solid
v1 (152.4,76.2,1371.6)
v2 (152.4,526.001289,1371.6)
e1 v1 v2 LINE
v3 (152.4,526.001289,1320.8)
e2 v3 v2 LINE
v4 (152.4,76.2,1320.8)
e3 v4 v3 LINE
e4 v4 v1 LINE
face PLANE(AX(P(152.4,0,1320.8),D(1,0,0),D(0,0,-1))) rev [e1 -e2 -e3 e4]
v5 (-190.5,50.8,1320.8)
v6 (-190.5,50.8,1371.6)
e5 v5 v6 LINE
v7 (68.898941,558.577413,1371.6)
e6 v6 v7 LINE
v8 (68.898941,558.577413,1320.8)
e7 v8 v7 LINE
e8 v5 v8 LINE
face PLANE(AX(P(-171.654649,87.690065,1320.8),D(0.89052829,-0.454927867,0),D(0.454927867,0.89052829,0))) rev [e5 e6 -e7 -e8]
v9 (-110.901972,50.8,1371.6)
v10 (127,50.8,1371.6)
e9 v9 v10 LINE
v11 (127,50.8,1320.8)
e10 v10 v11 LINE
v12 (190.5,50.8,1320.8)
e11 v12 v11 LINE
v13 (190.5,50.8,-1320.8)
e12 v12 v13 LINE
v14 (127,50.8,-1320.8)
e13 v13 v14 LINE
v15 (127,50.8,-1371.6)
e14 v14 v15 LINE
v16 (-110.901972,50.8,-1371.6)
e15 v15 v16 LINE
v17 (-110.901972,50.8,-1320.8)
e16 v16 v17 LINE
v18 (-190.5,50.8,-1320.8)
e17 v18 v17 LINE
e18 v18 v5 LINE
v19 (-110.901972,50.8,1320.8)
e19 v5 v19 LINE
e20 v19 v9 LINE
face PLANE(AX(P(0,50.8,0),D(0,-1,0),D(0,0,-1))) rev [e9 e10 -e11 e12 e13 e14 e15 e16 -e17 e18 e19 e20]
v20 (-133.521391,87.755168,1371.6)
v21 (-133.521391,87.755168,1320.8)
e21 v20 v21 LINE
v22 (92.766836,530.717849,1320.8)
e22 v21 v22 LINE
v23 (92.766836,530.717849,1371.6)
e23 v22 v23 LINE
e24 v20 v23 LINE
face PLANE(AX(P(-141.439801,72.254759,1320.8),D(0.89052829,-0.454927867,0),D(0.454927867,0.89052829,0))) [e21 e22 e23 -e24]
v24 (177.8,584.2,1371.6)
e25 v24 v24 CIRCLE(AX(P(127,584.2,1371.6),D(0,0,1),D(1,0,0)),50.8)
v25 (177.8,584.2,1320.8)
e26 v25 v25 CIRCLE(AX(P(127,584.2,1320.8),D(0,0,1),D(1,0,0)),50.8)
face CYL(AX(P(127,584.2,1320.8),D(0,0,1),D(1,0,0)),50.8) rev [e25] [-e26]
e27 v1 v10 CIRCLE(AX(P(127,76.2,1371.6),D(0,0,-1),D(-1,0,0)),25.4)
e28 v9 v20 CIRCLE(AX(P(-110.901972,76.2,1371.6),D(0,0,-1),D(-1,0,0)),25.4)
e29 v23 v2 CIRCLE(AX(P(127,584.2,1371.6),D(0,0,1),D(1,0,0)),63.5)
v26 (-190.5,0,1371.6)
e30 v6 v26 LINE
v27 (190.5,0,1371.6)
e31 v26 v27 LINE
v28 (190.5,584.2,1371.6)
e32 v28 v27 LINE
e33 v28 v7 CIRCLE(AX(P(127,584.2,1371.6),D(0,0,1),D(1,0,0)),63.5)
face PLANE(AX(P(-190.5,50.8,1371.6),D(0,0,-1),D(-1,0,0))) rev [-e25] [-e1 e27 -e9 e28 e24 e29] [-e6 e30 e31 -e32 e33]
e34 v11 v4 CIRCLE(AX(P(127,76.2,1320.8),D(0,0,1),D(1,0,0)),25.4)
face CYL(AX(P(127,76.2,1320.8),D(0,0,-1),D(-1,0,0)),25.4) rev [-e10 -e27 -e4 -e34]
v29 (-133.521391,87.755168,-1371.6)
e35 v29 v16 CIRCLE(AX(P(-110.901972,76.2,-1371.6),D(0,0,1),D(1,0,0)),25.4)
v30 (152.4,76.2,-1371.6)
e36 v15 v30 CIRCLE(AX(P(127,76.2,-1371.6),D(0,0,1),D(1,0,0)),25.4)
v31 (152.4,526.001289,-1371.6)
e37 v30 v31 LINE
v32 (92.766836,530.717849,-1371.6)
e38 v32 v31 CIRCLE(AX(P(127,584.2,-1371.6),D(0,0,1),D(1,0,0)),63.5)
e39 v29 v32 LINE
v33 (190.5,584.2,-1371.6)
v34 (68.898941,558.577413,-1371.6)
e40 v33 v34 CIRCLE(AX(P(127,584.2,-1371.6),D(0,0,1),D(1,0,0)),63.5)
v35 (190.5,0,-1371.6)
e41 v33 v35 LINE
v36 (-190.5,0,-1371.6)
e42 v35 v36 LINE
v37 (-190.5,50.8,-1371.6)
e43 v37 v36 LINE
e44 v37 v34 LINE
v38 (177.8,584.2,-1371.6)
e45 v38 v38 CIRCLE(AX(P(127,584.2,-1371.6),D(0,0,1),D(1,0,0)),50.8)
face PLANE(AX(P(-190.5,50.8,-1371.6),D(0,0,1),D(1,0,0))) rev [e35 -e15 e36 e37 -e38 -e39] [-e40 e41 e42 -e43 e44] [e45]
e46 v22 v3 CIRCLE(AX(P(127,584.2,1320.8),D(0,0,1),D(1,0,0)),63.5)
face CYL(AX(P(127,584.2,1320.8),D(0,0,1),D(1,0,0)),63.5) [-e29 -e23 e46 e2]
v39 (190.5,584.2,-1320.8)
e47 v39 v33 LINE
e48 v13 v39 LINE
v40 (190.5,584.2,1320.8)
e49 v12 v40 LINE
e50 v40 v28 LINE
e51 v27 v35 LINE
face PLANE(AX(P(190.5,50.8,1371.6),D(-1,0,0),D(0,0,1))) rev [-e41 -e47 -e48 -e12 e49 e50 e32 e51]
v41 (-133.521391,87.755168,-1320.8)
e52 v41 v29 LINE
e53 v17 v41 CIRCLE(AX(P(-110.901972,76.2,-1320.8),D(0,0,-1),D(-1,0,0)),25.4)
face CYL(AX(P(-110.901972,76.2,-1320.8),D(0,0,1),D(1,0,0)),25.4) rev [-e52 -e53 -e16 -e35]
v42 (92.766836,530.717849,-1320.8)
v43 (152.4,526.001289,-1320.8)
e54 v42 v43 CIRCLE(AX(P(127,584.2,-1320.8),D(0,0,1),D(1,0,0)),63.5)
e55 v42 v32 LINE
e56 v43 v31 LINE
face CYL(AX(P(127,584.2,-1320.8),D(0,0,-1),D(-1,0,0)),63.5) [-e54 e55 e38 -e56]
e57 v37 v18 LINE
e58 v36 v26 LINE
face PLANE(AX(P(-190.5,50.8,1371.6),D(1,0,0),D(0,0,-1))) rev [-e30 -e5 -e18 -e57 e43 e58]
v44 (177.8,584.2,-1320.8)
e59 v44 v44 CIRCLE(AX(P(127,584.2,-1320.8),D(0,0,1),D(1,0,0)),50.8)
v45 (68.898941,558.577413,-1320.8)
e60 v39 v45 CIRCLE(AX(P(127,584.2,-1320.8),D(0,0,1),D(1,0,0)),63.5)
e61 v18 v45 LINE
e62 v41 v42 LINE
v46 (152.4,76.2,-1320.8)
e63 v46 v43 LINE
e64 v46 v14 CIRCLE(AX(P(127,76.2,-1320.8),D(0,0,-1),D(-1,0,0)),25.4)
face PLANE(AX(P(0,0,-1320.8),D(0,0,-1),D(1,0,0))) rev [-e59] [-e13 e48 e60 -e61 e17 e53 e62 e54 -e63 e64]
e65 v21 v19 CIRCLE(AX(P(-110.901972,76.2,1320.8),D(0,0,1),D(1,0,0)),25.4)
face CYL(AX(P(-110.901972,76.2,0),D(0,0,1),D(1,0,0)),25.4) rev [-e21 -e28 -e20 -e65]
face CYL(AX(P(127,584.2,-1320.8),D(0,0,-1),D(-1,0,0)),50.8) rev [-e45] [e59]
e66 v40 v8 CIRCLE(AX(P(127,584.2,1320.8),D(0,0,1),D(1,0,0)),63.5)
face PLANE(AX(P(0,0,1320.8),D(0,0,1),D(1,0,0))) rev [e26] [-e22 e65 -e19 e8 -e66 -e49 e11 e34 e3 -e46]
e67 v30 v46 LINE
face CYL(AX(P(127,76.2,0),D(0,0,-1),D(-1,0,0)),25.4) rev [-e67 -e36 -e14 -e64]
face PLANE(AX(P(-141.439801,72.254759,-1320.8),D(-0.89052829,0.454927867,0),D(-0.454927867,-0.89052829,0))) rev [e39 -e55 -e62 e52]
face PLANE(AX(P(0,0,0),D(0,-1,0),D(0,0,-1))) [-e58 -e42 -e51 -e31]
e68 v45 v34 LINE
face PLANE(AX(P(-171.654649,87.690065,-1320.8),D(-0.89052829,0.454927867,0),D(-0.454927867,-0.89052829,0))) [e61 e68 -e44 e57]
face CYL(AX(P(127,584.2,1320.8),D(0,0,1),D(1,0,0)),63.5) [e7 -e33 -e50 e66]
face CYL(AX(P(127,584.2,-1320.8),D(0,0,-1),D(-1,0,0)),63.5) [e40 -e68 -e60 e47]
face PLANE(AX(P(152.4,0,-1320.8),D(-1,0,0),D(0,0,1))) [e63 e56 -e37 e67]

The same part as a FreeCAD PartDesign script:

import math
import FreeCAD as App
import Part
import Sketcher
from FreeCAD import Vector
Q = App.Units.Quantity


def edges_at(feature, points):
    """Names of the edges that pass closest to the given points."""
    edges = feature.Shape.Edges
    near = lambda p: min(range(len(edges)), key=lambda i: edges[i].distToShape(Part.Vertex(*p))[0])
    return sorted({f"Edge{near(p) + 1}" for p in points})


def add_polygon(sketch, points):
    """Adds a closed chain of lines whose ends are joined by coincident constraints."""
    first, n = sketch.GeometryCount, len(points)
    for a, b in zip(points, points[1:] + points[:1]):
        sketch.addGeometry(Part.LineSegment(App.Vector(*a, 0), App.Vector(*b, 0)), False)
    for i in range(n):
        sketch.addConstraint(Sketcher.Constraint("Coincident", first + i, 2, first + (i + 1) % n, 1))

doc = App.newDocument("Part")
params = doc.addObject("Spreadsheet::Sheet", "Params")
for row, (alias, value) in enumerate([
    ("sketch1_width", "15 in"),
    ("sketch1_height", "108 in"),
    ("pad1_length", "2 in"),
    ("sketch2_diameter", "4 in"),
    ("sketch2_radius", "2.5 in"),
    ("sketch2_height", "21 in"),
    ("sketch2_width", "1.5 in"),
    ("pad2_length", "2 in"),
    ("fillet_radius", "1 in"),
], start=1):
    params.set(f"A{row}", alias)
    params.set(f"B{row}", "=" + value)
    params.setAlias(f"B{row}", alias)

body = doc.addObject("PartDesign::Body", "Body")

# Sketch on XZ plane
sketch1 = body.newObject("Sketcher::SketchObject", "Sketch")
sketch1.AttachmentSupport = (doc.getObject("XZ_Plane"), [""])
sketch1.MapMode = "FlatFace"
add_polygon(sketch1, [(-190, -1372), (-190, 1372), (190, 1372), (190, -1372)])  # lines 0-3
sketch1.addConstraint(Sketcher.Constraint("Vertical", 0))
sketch1.addConstraint(Sketcher.Constraint("Horizontal", 1))
sketch1.addConstraint(Sketcher.Constraint("Vertical", 2))
sketch1.addConstraint(Sketcher.Constraint("Horizontal", 3))
sketch1.addConstraint(Sketcher.Constraint("Symmetric", 0, 2, 2, 2, -1, 1))
sketch1.addConstraint(Sketcher.Constraint("DistanceX", 1, 1, 1, 2, Q("15 in")))
sketch1.addConstraint(Sketcher.Constraint("DistanceY", 0, 1, 0, 2, Q("108 in")))
sketch1.setExpression("Constraints[9]", "Params.sketch1_width")
sketch1.setExpression("Constraints[10]", "Params.sketch1_height")
pad1 = body.newObject("PartDesign::Pad", "Pad")
pad1.Profile = sketch1
pad1.setExpression("Length", "Params.pad1_length")
pad1.Reversed = True

# Sketch on XY plane
sketch2 = body.newObject("Sketcher::SketchObject", "Sketch001")
sketch2.AttachmentSupport = (doc.getObject("XY_Plane"), [""])
sketch2.MapMode = "FlatFace"
sketch2.AttachmentOffset = App.Placement(Vector(0, 0, 54 * 25.4), App.Rotation())
sketch2.addGeometry(Part.LineSegment(Vector(69, 559, 0), Vector(-190, 51, 0)), False)
sketch2.addGeometry(Part.LineSegment(Vector(-190, 51, 0), Vector(-152, 51, 0)), False)
sketch2.addGeometry(Part.LineSegment(Vector(-152, 51, 0), Vector(93, 531, 0)), False)
sketch2.addGeometry(Part.ArcOfCircle(Part.Circle(Vector(127, 584, 0), Vector(0, 0, 1), 64), math.radians(-123), math.radians(-66)), False)
sketch2.addGeometry(Part.LineSegment(Vector(152, 526, 0), Vector(152, 51, 0)), False)
sketch2.addGeometry(Part.LineSegment(Vector(152, 51, 0), Vector(190, 51, 0)), False)
sketch2.addGeometry(Part.LineSegment(Vector(190, 51, 0), Vector(190, 584, 0)), False)
sketch2.addGeometry(Part.ArcOfCircle(Part.Circle(Vector(127, 584, 0), Vector(0, 0, 1), 64), math.radians(0), math.radians(204)), False)
sketch2.addGeometry(Part.Circle(Vector(127, 584, 0), Vector(0, 0, 1), 51), False)
sketch2.addConstraint(Sketcher.Constraint("Coincident", 0, 2, 1, 1))
sketch2.addConstraint(Sketcher.Constraint("Coincident", 1, 2, 2, 1))
sketch2.addConstraint(Sketcher.Constraint("Coincident", 2, 2, 3, 1))
sketch2.addConstraint(Sketcher.Constraint("Coincident", 3, 2, 4, 1))
sketch2.addConstraint(Sketcher.Constraint("Coincident", 4, 2, 5, 1))
sketch2.addConstraint(Sketcher.Constraint("Coincident", 5, 2, 6, 1))
sketch2.addConstraint(Sketcher.Constraint("Tangent", 6, 2, 7, 1))
sketch2.addConstraint(Sketcher.Constraint("Coincident", 7, 2, 0, 1))
sketch2.addConstraint(Sketcher.Constraint("Horizontal", 1))
sketch2.addConstraint(Sketcher.Constraint("Vertical", 4))
sketch2.addConstraint(Sketcher.Constraint("Horizontal", 5))
sketch2.addConstraint(Sketcher.Constraint("Vertical", 6))
sketch2.addConstraint(Sketcher.Constraint("Coincident", 7, 3, 3, 3))
sketch2.addConstraint(Sketcher.Constraint("Coincident", 8, 3, 3, 3))
sketch2.addConstraint(Sketcher.Constraint("Equal", 3, 7))
sketch2.addConstraint(Sketcher.Constraint("Symmetric", 1, 2, 4, 2, -2))
sketch2.addConstraint(Sketcher.Constraint("Parallel", 0, 2))
sketch2.addConstraint(Sketcher.Constraint("Equal", 1, 5))
sketch2.addConstraint(Sketcher.Constraint("Diameter", 8, Q("4 in")))
sketch2.addConstraint(Sketcher.Constraint("Radius", 3, Q("2.5 in")))
sketch2.addConstraint(Sketcher.Constraint("DistanceY", 6, 1, 6, 2, Q("21 in")))
sketch2.addConstraint(Sketcher.Constraint("DistanceX", 1, 1, 1, 2, Q("1.5 in")))
sketch2.addConstraint(Sketcher.Constraint("DistanceX", -1, 1, 3, 3, Q("5 in")))
sketch2.addConstraint(Sketcher.Constraint("DistanceY", -1, 1, 3, 3, Q("23 in")))
sketch2.addConstraint(Sketcher.Constraint("Distance", 0, 570.197959))
sketch2.setExpression("Constraints[18]", "Params.sketch2_diameter")
sketch2.setExpression("Constraints[19]", "Params.sketch2_radius")
sketch2.setExpression("Constraints[20]", "Params.sketch2_height")
sketch2.setExpression("Constraints[21]", "Params.sketch2_width")
pad2 = body.newObject("PartDesign::Pad", "Pad001")
pad2.Profile = sketch2
pad2.setExpression("Length", "Params.pad2_length")
pad2.Reversed = True
doc.recompute()

mirrored = body.newObject("PartDesign::Mirrored", "Mirrored")
mirrored.Originals = [pad2]
mirrored.MirrorPlane = (doc.getObject("XY_Plane"), [""])
body.Tip = mirrored
doc.recompute()

fillet = body.newObject("PartDesign::Fillet", "Fillet")
fillet.Base = (mirrored, edges_at(mirrored, [
    (-152.4, 50.8, 1346.2),
    (152.4, 50.8, 1346.2),
    (-152.4, 50.8, -1346.2),
    (152.4, 50.8, -1346.2),
]))
fillet.setExpression("Radius", "Params.fillet_radius")

doc.recompute()
